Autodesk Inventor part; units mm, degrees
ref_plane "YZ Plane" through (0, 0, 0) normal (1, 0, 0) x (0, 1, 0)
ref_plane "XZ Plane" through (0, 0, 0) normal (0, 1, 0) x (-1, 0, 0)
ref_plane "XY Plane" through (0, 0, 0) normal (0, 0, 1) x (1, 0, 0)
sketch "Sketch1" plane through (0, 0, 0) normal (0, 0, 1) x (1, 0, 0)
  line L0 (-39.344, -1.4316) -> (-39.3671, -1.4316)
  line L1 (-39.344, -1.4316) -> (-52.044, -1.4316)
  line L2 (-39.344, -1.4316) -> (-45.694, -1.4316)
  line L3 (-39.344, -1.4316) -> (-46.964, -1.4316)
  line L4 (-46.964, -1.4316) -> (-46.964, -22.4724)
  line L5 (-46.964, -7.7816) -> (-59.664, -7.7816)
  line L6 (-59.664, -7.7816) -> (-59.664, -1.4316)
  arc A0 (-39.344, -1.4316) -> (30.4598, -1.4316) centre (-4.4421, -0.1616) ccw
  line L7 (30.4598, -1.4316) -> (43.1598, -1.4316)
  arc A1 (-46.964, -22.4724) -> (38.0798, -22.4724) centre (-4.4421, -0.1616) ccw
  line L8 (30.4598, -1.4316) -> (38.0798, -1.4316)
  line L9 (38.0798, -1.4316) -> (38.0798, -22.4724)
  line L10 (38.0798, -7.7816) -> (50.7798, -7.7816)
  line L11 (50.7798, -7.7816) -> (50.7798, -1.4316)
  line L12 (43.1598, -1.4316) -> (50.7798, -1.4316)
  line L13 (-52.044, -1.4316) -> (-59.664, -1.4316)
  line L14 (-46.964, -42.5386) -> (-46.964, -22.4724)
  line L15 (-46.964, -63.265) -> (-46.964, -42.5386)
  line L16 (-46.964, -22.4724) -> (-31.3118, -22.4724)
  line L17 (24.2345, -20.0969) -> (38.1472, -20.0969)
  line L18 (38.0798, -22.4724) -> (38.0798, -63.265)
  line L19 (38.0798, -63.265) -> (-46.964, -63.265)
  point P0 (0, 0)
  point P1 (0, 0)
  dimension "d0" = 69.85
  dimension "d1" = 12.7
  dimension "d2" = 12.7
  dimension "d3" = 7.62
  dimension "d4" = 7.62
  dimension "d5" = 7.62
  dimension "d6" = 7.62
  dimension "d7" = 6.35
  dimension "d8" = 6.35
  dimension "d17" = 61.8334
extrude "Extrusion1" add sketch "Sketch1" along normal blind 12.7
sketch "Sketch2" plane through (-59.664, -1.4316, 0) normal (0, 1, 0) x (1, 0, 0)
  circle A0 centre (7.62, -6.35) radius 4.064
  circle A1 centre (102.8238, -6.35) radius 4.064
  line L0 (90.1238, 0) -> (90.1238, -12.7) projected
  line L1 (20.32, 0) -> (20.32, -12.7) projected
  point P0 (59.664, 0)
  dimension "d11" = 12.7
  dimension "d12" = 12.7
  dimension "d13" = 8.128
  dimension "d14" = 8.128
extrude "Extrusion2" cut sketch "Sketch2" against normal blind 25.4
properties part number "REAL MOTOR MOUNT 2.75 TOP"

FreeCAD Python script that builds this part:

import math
import FreeCAD as App
import Part
import Sketcher
Q = App.Units.Quantity

doc = App.newDocument("Part")
body = doc.addObject("PartDesign::Body", "Body")

sketch1 = body.newObject("Sketcher::SketchObject", "Sketch")
sketch1.AttachmentSupport = (doc.getObject("XY_Plane"), [""])
sketch1.MapMode = "FlatFace"
sketch1.addGeometry(Part.LineSegment(App.Vector(-39.344, -1.4316, 0), App.Vector(-59.664, -1.4316, 0)), False)
sketch1.addGeometry(Part.LineSegment(App.Vector(-59.664, -1.4316, 0), App.Vector(-59.664, -7.7816, 0)), False)
sketch1.addGeometry(Part.LineSegment(App.Vector(-59.664, -7.7816, 0), App.Vector(-46.964, -7.7816, 0)), False)
sketch1.addGeometry(Part.LineSegment(App.Vector(-46.964, -7.7816, 0), App.Vector(-46.964, -63.265, 0)), False)
sketch1.addGeometry(Part.LineSegment(App.Vector(-46.964, -63.265, 0), App.Vector(38.0798, -63.265, 0)), False)
sketch1.addGeometry(Part.LineSegment(App.Vector(38.0798, -63.265, 0), App.Vector(38.0798, -7.7816, 0)), False)
sketch1.addGeometry(Part.LineSegment(App.Vector(38.0798, -7.7816, 0), App.Vector(50.7798, -7.7816, 0)), False)
sketch1.addGeometry(Part.LineSegment(App.Vector(50.7798, -7.7816, 0), App.Vector(50.7798, -1.4316, 0)), False)
sketch1.addGeometry(Part.LineSegment(App.Vector(50.7798, -1.4316, 0), App.Vector(30.4598, -1.4316, 0)), False)
sketch1.addGeometry(Part.ArcOfCircle(Part.Circle(App.Vector(-4.4421, -0.1616, 0), App.Vector(0, 0, 1), 34.924999), math.radians(-177.916058), math.radians(-2.083942)), False)
sketch1.addConstraint(Sketcher.Constraint("Coincident", 0, 2, 1, 1))
sketch1.addConstraint(Sketcher.Constraint("Coincident", 1, 2, 2, 1))
sketch1.addConstraint(Sketcher.Constraint("Coincident", 2, 2, 3, 1))
sketch1.addConstraint(Sketcher.Constraint("Coincident", 3, 2, 4, 1))
sketch1.addConstraint(Sketcher.Constraint("Coincident", 4, 2, 5, 1))
sketch1.addConstraint(Sketcher.Constraint("Coincident", 5, 2, 6, 1))
sketch1.addConstraint(Sketcher.Constraint("Coincident", 6, 2, 7, 1))
sketch1.addConstraint(Sketcher.Constraint("Coincident", 7, 2, 8, 1))
sketch1.addConstraint(Sketcher.Constraint("Coincident", 8, 2, 9, 2))
sketch1.addConstraint(Sketcher.Constraint("Coincident", 9, 1, 0, 1))
sketch1.addConstraint(Sketcher.Constraint("Horizontal", 0))
sketch1.addConstraint(Sketcher.Constraint("Vertical", 1))
sketch1.addConstraint(Sketcher.Constraint("Horizontal", 2))
sketch1.addConstraint(Sketcher.Constraint("Vertical", 3))
sketch1.addConstraint(Sketcher.Constraint("Horizontal", 4))
sketch1.addConstraint(Sketcher.Constraint("Vertical", 5))
sketch1.addConstraint(Sketcher.Constraint("Horizontal", 6))
sketch1.addConstraint(Sketcher.Constraint("Vertical", 7))
sketch1.addConstraint(Sketcher.Constraint("Horizontal", 8))
sketch1.addConstraint(Sketcher.Constraint("Horizontal", 2, 2, 5, 2))
sketch1.addConstraint(Sketcher.Constraint("Horizontal", 0, 2, 7, 2))
sketch1.addConstraint(Sketcher.Constraint("Equal", 2, 6))
sketch1.addConstraint(Sketcher.Constraint("Equal", 0, 8))
sketch1.addConstraint(Sketcher.Constraint("DistanceX", 2, 1, 2, 2, Q("0.5 in")))
sketch1.addConstraint(Sketcher.Constraint("Radius", 9, Q("1.375 in")))
sketch1.addConstraint(Sketcher.Constraint("DistanceY", 1, 2, 1, 1, Q("0.25 in")))
sketch1.addConstraint(Sketcher.Constraint("DistanceY", 1, 2, 9, 3, Q("0.3 in")))
sketch1.addConstraint(Sketcher.Constraint("DistanceX", 8, 2, 5, 2, Q("0.3 in")))
sketch1.addConstraint(Sketcher.Constraint("DistanceY", 3, 2, 0, 2, Q("61.8334 mm")))
sketch1.addConstraint(Sketcher.Constraint("DistanceX", -1, 1, 4, 2, Q("1.4992 in")))
sketch1.addConstraint(Sketcher.Constraint("DistanceY", 9, 3, -1, 1, Q("0.1616 mm")))
pad1 = body.newObject("PartDesign::Pad", "Pad")
pad1.Profile = sketch1
pad1.Length = Q("0.5 in")

sketch2 = body.newObject("Sketcher::SketchObject", "Sketch001")
sketch2.AttachmentSupport = (doc.getObject("XZ_Plane"), [""])
sketch2.MapMode = "FlatFace"
sketch2.AttachmentOffset = App.Placement(App.Vector(0, 0, 1.4316), App.Rotation())
sketch2.addGeometry(Part.Circle(App.Vector(-52.044, 6.35, 0), App.Vector(0, 0, 1), 4.064), False)
sketch2.addGeometry(Part.Circle(App.Vector(43.1598, 6.35, 0), App.Vector(0, 0, 1), 4.064), False)
sketch2.addConstraint(Sketcher.Constraint("Equal", 0, 1))
sketch2.addConstraint(Sketcher.Constraint("Horizontal", 0, 3, 1, 3))
sketch2.addConstraint(Sketcher.Constraint("Diameter", 0, Q("0.32 in")))
sketch2.addConstraint(Sketcher.Constraint("DistanceY", -1, 1, 0, 3, Q("0.25 in")))
sketch2.addConstraint(Sketcher.Constraint("DistanceX", -1, 1, 1, 3, Q("1.6992 in")))
sketch2.addConstraint(Sketcher.Constraint("DistanceX", 0, 3, -1, 1, Q("52.044 mm")))
pocket1 = body.newObject("PartDesign::Pocket", "Pocket")
pocket1.Profile = sketch2
pocket1.Length = Q("1 in")
pocket1.Reversed = True

doc.recompute()
